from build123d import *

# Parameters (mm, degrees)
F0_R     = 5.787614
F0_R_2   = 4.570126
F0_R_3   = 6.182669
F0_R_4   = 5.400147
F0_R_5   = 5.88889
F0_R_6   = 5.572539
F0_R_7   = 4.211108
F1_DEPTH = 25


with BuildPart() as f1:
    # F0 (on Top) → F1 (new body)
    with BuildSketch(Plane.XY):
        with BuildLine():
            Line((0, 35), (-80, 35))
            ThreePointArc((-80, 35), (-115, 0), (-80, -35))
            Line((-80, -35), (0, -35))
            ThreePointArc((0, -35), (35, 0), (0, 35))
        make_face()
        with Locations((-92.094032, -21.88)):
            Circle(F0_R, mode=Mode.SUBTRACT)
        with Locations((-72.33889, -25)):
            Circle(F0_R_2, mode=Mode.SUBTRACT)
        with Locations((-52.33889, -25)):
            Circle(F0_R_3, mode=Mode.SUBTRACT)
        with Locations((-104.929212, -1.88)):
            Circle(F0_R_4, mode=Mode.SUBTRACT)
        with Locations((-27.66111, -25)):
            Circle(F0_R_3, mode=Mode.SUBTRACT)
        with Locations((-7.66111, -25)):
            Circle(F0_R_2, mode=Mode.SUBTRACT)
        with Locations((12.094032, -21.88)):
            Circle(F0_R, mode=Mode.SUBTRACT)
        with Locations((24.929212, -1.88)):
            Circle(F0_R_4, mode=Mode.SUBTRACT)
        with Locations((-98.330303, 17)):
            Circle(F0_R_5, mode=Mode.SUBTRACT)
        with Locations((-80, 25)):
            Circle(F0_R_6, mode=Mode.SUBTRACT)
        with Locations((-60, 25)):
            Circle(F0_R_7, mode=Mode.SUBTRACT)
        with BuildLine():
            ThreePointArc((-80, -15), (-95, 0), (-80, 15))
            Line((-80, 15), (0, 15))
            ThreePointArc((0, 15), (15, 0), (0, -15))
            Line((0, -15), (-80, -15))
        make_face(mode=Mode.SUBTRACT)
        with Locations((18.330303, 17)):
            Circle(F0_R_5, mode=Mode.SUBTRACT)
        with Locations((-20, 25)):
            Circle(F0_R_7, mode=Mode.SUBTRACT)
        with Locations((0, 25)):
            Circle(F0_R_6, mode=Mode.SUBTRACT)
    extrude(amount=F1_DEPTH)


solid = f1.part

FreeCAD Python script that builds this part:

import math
import FreeCAD as App
import Part
import Sketcher

V = App.Vector

doc = App.newDocument("Part")
body = doc.addObject("PartDesign::Body", "Body")

# Sketch on XY plane
sketch1 = body.newObject("Sketcher::SketchObject", "Sketch")
sketch1.AttachmentSupport = (doc.getObject("XY_Plane"), [""])
sketch1.MapMode = "FlatFace"
sketch1.addGeometry(Part.LineSegment(V(0, 35, 0), V(-80, 35, 0)), False)
sketch1.addGeometry(Part.ArcOfCircle(Part.Circle(V(-80, 0, 0), V(0, 0, 1), 35), math.radians(90), math.radians(270)), False)
sketch1.addGeometry(Part.LineSegment(V(-80, -35, 0), V(0, -35, 0)), False)
sketch1.addGeometry(Part.ArcOfCircle(Part.Circle(V(0, 0, 0), V(0, 0, 1), 35), math.radians(-90), math.radians(90)), False)
sketch1.addGeometry(Part.Circle(V(-92.1, -21.9, 0), V(0, 0, 1), 5.8), False)
sketch1.addGeometry(Part.Circle(V(-72.3, -25, 0), V(0, 0, 1), 4.6), False)
sketch1.addGeometry(Part.Circle(V(-52.3, -25, 0), V(0, 0, 1), 6.2), False)
sketch1.addGeometry(Part.Circle(V(-104.9, -1.9, 0), V(0, 0, 1), 5.4), False)
sketch1.addGeometry(Part.Circle(V(-27.7, -25, 0), V(0, 0, 1), 6.2), False)
sketch1.addGeometry(Part.Circle(V(-7.7, -25, 0), V(0, 0, 1), 4.6), False)
sketch1.addGeometry(Part.Circle(V(12.1, -21.9, 0), V(0, 0, 1), 5.8), False)
sketch1.addGeometry(Part.Circle(V(24.9, -1.9, 0), V(0, 0, 1), 5.4), False)
sketch1.addGeometry(Part.Circle(V(-98.3, 17, 0), V(0, 0, 1), 5.9), False)
sketch1.addGeometry(Part.Circle(V(-80, 25, 0), V(0, 0, 1), 5.6), False)
sketch1.addGeometry(Part.Circle(V(-60, 25, 0), V(0, 0, 1), 4.2), False)
sketch1.addGeometry(Part.LineSegment(V(0, -15, 0), V(-80, -15, 0)), False)
sketch1.addGeometry(Part.ArcOfCircle(Part.Circle(V(-80, 0, 0), V(0, 0, 1), 15), math.radians(90), math.radians(270)), False)
sketch1.addGeometry(Part.LineSegment(V(-80, 15, 0), V(0, 15, 0)), False)
sketch1.addGeometry(Part.ArcOfCircle(Part.Circle(V(0, 0, 0), V(0, 0, 1), 15), math.radians(-90), math.radians(90)), False)
sketch1.addGeometry(Part.Circle(V(-20, 25, 0), V(0, 0, 1), 4.2), False)
sketch1.addGeometry(Part.Circle(V(18.3, 17, 0), V(0, 0, 1), 5.9), False)
sketch1.addGeometry(Part.Circle(V(0, 25, 0), V(0, 0, 1), 5.6), False)
sketch1.addConstraint(Sketcher.Constraint("Tangent", 0, 2, 1, 1))
sketch1.addConstraint(Sketcher.Constraint("Tangent", 1, 2, 2, 1))
sketch1.addConstraint(Sketcher.Constraint("Tangent", 2, 2, 3, 1))
sketch1.addConstraint(Sketcher.Constraint("Tangent", 3, 2, 0, 1))
sketch1.addConstraint(Sketcher.Constraint("Tangent", 15, 2, 16, 2))
sketch1.addConstraint(Sketcher.Constraint("Tangent", 16, 1, 17, 1))
sketch1.addConstraint(Sketcher.Constraint("Tangent", 17, 2, 18, 2))
sketch1.addConstraint(Sketcher.Constraint("Tangent", 18, 1, 15, 1))
sketch1.addConstraint(Sketcher.Constraint("Horizontal", 0))
sketch1.addConstraint(Sketcher.Constraint("Horizontal", 2))
sketch1.addConstraint(Sketcher.Constraint("Horizontal", 15))
sketch1.addConstraint(Sketcher.Constraint("Horizontal", 17))
sketch1.addConstraint(Sketcher.Constraint("Coincident", 3, 3, -1, 1))
sketch1.addConstraint(Sketcher.Constraint("Coincident", 18, 3, -1, 1))
sketch1.addConstraint(Sketcher.Constraint("Equal", 6, 8))
sketch1.addConstraint(Sketcher.Constraint("Equal", 5, 9))
sketch1.addConstraint(Sketcher.Constraint("Equal", 4, 10))
sketch1.addConstraint(Sketcher.Constraint("Equal", 7, 11))
sketch1.addConstraint(Sketcher.Constraint("Equal", 14, 19))
sketch1.addConstraint(Sketcher.Constraint("Equal", 12, 20))
sketch1.addConstraint(Sketcher.Constraint("Equal", 13, 21))
sketch1.addConstraint(Sketcher.Constraint("PointOnObject", 21, 3, -2))
sketch1.addConstraint(Sketcher.Constraint("Horizontal", 5, 3, 6, 3))
sketch1.addConstraint(Sketcher.Constraint("Horizontal", 6, 3, 8, 3))
sketch1.addConstraint(Sketcher.Constraint("Horizontal", 8, 3, 9, 3))
sketch1.addConstraint(Sketcher.Constraint("Horizontal", 4, 3, 10, 3))
sketch1.addConstraint(Sketcher.Constraint("Horizontal", 7, 3, 11, 3))
sketch1.addConstraint(Sketcher.Constraint("Horizontal", 13, 3, 14, 3))
sketch1.addConstraint(Sketcher.Constraint("Horizontal", 14, 3, 19, 3))
sketch1.addConstraint(Sketcher.Constraint("Horizontal", 12, 3, 20, 3))
sketch1.addConstraint(Sketcher.Constraint("Horizontal", 19, 3, 21, 3))
sketch1.addConstraint(Sketcher.Constraint("Vertical", 1, 3, 13, 3))
sketch1.addConstraint(Sketcher.Constraint("Vertical", 13, 3, 16, 3))
sketch1.addConstraint(Sketcher.Constraint("Radius", 1, 35.0))
sketch1.addConstraint(Sketcher.Constraint("Radius", 16, 15.0))
sketch1.addConstraint(Sketcher.Constraint("DistanceX", 0, 2, 0, 1, 80.0))
sketch1.addConstraint(Sketcher.Constraint("DistanceY", 5, 3, -1, 1, 25.0))
sketch1.addConstraint(Sketcher.Constraint("DistanceY", -1, 1, 12, 3, 17.0))
sketch1.addConstraint(Sketcher.Constraint("DistanceY", -1, 1, 13, 3, 25.0))
sketch1.addConstraint(Sketcher.Constraint("DistanceX", 14, 3, -1, 1, 60.0))
sketch1.addConstraint(Sketcher.Constraint("DistanceX", 19, 3, -1, 1, 20.0))
sketch1.addConstraint(Sketcher.Constraint("DistanceX", 5, 3, 6, 3, 20.0))
sketch1.addConstraint(Sketcher.Constraint("DistanceY", 4, 3, 7, 3, 20.0))
sketch1.addConstraint(Sketcher.Constraint("DistanceX", 8, 3, 9, 3, 20.0))
sketch1.addConstraint(Sketcher.Constraint("Diameter", 12, 11.77778))
sketch1.addConstraint(Sketcher.Constraint("DistanceY", 4, 3, -1, 1, 21.88))
sketch1.addConstraint(Sketcher.Constraint("Diameter", 4, 11.575228))
sketch1.addConstraint(Sketcher.Constraint("Diameter", 5, 9.140252))
sketch1.addConstraint(Sketcher.Constraint("Diameter", 6, 12.365338))
sketch1.addConstraint(Sketcher.Constraint("Diameter", 7, 10.800294))
sketch1.addConstraint(Sketcher.Constraint("Diameter", 13, 11.145078))
sketch1.addConstraint(Sketcher.Constraint("Diameter", 14, 8.422216))
sketch1.addConstraint(Sketcher.Constraint("DistanceX", 6, 3, 11, 3, 77.268102))
sketch1.addConstraint(Sketcher.Constraint("DistanceX", 4, 3, -1, 1, 92.094032))
sketch1.addConstraint(Sketcher.Constraint("DistanceX", 5, 3, -1, 1, 72.33889))
sketch1.addConstraint(Sketcher.Constraint("DistanceX", 8, 3, -1, 1, 27.66111))
sketch1.addConstraint(Sketcher.Constraint("DistanceX", 7, 3, 4, 3, 12.83518))
sketch1.addConstraint(Sketcher.Constraint("DistanceX", 9, 3, 10, 3, 19.755142))
sketch1.addConstraint(Sketcher.Constraint("DistanceX", 7, 3, 12, 3, 6.598909))
sketch1.addConstraint(Sketcher.Constraint("DistanceX", 20, 3, 11, 3, 6.598909))
pad1 = body.newObject("PartDesign::Pad", "Pad")
pad1.Profile = sketch1
pad1.Length = 25

doc.recompute()
